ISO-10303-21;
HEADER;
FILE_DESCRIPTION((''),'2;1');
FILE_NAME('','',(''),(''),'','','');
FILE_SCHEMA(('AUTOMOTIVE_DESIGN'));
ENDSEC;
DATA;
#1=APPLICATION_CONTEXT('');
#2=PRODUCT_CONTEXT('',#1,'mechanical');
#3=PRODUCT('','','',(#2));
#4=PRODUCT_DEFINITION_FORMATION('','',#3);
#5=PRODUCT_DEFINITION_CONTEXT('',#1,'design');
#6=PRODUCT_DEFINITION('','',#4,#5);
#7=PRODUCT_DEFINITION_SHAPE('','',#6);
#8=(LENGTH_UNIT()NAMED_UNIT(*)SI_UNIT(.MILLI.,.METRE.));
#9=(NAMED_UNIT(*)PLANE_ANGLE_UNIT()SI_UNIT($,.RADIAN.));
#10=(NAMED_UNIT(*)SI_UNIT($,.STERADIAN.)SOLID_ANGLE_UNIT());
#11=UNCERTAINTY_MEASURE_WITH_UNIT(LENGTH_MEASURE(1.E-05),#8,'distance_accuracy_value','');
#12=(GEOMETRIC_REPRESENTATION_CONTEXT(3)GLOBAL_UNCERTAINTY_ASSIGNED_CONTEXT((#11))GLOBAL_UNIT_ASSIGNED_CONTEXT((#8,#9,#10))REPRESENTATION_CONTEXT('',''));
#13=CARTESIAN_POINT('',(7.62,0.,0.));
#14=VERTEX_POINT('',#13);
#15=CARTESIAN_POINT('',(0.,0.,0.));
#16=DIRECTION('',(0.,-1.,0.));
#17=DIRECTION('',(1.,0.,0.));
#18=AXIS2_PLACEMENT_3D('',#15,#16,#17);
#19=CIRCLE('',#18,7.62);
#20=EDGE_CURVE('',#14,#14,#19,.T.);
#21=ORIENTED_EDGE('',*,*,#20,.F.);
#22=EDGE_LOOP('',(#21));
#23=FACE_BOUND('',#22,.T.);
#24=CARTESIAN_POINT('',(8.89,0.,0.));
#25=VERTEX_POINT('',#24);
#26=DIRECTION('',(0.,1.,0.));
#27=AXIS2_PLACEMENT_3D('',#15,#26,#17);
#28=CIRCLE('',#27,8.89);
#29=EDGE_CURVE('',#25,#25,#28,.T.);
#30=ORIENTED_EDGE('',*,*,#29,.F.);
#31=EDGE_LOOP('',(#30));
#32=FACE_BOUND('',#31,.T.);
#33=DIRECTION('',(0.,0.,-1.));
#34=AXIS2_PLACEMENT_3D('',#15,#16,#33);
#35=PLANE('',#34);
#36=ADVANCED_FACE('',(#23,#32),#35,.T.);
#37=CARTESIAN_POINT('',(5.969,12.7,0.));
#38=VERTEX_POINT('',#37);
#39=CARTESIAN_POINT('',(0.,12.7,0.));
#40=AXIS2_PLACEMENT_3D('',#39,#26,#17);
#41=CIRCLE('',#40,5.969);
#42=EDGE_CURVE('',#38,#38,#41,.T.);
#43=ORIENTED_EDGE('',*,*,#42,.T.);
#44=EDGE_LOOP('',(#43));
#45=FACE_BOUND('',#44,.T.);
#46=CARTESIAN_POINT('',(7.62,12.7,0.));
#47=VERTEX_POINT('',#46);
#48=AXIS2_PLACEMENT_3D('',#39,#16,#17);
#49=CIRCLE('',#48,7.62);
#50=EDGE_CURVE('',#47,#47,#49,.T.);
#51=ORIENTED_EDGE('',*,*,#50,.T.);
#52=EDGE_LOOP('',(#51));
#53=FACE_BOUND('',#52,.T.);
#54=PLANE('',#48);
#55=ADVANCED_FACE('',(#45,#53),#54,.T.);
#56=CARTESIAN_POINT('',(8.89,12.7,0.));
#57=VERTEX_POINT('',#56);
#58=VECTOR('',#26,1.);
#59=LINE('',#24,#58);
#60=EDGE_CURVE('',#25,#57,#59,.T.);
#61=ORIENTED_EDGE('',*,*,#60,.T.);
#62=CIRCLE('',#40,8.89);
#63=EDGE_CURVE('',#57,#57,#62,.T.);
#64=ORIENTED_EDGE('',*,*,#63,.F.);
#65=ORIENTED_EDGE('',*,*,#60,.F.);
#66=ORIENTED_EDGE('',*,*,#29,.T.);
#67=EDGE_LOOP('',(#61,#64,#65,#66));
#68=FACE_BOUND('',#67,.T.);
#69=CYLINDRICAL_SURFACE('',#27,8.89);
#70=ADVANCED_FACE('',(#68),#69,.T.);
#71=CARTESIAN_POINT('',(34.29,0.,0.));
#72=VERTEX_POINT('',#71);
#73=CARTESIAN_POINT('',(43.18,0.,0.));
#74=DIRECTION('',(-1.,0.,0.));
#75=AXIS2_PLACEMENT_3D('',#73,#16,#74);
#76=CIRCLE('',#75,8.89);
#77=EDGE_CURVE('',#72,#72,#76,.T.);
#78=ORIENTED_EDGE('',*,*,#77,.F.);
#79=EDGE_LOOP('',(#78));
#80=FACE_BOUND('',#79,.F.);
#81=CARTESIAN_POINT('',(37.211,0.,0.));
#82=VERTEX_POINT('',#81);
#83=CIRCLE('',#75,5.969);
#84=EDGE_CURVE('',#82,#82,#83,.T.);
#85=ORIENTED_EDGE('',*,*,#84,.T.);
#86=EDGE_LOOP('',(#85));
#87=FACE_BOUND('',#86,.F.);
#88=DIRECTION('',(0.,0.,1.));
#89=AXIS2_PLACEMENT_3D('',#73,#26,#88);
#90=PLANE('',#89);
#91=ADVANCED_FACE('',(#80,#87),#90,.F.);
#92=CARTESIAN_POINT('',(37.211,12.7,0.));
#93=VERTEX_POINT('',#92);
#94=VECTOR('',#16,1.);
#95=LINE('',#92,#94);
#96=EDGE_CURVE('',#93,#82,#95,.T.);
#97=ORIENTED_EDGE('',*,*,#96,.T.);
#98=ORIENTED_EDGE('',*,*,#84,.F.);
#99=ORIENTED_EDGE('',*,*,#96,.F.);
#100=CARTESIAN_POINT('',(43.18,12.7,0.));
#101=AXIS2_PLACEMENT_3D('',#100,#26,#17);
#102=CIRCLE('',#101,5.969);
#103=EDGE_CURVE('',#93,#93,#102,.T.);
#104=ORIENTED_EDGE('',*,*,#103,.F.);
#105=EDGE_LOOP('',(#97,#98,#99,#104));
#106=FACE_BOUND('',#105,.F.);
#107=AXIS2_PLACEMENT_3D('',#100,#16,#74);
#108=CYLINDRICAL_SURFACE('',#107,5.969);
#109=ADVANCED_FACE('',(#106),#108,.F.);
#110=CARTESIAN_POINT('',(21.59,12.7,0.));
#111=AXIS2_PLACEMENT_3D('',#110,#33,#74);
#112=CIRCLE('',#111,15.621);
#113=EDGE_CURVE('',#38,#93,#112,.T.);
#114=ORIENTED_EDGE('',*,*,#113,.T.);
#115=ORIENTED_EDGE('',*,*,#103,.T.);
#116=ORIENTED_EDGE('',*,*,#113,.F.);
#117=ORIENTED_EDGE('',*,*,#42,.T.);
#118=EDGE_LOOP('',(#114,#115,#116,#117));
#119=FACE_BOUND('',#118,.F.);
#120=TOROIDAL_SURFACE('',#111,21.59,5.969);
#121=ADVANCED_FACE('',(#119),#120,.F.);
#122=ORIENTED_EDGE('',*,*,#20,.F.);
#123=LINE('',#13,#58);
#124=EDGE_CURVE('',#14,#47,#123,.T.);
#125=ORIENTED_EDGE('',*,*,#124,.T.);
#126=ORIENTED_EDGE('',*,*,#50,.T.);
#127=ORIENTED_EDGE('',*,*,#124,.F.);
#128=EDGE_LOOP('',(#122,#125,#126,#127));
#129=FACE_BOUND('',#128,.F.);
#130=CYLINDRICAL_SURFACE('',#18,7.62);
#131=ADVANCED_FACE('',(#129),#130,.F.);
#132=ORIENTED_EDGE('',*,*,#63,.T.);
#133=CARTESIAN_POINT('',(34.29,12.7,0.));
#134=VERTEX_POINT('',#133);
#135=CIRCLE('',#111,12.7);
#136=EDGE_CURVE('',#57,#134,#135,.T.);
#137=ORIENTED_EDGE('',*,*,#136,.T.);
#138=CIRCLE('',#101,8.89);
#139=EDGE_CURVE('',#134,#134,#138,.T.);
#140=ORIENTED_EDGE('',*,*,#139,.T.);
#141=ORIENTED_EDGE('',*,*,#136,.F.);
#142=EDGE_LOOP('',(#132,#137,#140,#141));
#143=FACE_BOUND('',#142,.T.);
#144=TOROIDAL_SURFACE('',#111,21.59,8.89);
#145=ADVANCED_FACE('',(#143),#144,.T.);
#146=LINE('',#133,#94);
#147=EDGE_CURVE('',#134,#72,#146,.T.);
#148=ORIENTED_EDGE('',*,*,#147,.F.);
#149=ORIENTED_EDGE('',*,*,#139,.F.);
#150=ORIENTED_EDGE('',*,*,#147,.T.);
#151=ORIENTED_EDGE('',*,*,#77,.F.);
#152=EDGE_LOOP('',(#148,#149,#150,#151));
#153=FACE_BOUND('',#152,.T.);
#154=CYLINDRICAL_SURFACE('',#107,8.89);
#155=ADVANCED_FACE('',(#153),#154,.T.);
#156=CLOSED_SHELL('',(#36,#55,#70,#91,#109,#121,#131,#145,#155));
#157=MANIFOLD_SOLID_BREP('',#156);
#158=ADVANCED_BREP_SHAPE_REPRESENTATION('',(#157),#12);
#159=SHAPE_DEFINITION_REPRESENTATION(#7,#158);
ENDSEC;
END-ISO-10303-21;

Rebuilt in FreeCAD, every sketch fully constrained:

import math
import FreeCAD as App
import Part
import Sketcher
from FreeCAD import Vector
Q = App.Units.Quantity

doc = App.newDocument("Part")
body = doc.addObject("PartDesign::Body", "Body")

# Sketch on XZ plane
sketch1 = doc.addObject("Sketcher::SketchObject", "Sketch")
body.addObject(sketch1)
sketch1.AttachmentSupport = (doc.XZ_Plane, [""])
sketch1.MapMode = "FlatFace"
sketch1.addGeometry([
    Part.Circle(Vector(0, 0, 0), Vector(0, 0, 1), 8.89),
    Part.Circle(Vector(0, 0, 0), Vector(0, 0, 1), 5.969),
], False)
sketch1.addConstraint([
    Sketcher.Constraint("Coincident", 0, 3, -1, 1),
    Sketcher.Constraint("Coincident", 1, 3, -1, 1),
    Sketcher.Constraint("Diameter", 0, Q("0.7 in")),
    Sketcher.Constraint("Diameter", 1, Q("0.47 in")),
])

# Sketch on XY plane
sketch2 = doc.addObject("Sketcher::SketchObject", "Sketch001")
body.addObject(sketch2)
sketch2.AttachmentSupport = (doc.XY_Plane, [""])
sketch2.MapMode = "FlatFace"
sketch2.addGeometry([
    Part.LineSegment(Vector(0, 0, 0), Vector(0, 12.7, 0)),
    Part.ArcOfCircle(Part.Circle(Vector(21.59, 12.7, 0), Vector(0, 0, 1), 21.59), math.radians(0), math.radians(180)),
    Part.LineSegment(Vector(43.18, 12.7, 0), Vector(43.18, 0, 0)),
], False)
sketch2.addConstraint([
    Sketcher.Constraint("Tangent", 0, 2, 1, 2),
    Sketcher.Constraint("Tangent", 1, 1, 2, 1),
    Sketcher.Constraint("Vertical", 0),
    Sketcher.Constraint("Vertical", 2),
    Sketcher.Constraint("Coincident", 0, 1, -1, 1),
    Sketcher.Constraint("PointOnObject", 2, 2, -1),
    Sketcher.Constraint("Radius", 1, Q("0.85 in")),
    Sketcher.Constraint("DistanceY", 0, 1, 0, 2, Q("0.5 in")),
])
doc.recompute()

additivepipe = doc.addObject("PartDesign::AdditivePipe", "AdditivePipe")
body.addObject(additivepipe)
additivepipe.Profile = sketch1
additivepipe.Spine = (sketch2, ["Edge1", "Edge2", "Edge3"])

# Sketch on XZ plane
sketch3 = doc.addObject("Sketcher::SketchObject", "Sketch002")
body.addObject(sketch3)
sketch3.AttachmentSupport = (doc.XZ_Plane, [""])
sketch3.MapMode = "FlatFace"
sketch3.addGeometry([
    Part.Circle(Vector(0, 0, 0), Vector(0, 0, 1), 7.62),
    Part.Circle(Vector(0, 0, 0), Vector(0, 0, 1), 5.969),
], False)
sketch3.addConstraint([
    Sketcher.Constraint("Coincident", 0, 3, -1, 1),
    Sketcher.Constraint("Coincident", 1, 3, -1, 1),
    Sketcher.Constraint("Diameter", 0, Q("0.6 in")),
    Sketcher.Constraint("Diameter", 1, Q("0.47 in")),
])
pocket1 = doc.addObject("PartDesign::Pocket", "Pocket")
body.addObject(pocket1)
pocket1.Profile = sketch3
pocket1.Length = Q("0.5 in")

doc.recompute()
